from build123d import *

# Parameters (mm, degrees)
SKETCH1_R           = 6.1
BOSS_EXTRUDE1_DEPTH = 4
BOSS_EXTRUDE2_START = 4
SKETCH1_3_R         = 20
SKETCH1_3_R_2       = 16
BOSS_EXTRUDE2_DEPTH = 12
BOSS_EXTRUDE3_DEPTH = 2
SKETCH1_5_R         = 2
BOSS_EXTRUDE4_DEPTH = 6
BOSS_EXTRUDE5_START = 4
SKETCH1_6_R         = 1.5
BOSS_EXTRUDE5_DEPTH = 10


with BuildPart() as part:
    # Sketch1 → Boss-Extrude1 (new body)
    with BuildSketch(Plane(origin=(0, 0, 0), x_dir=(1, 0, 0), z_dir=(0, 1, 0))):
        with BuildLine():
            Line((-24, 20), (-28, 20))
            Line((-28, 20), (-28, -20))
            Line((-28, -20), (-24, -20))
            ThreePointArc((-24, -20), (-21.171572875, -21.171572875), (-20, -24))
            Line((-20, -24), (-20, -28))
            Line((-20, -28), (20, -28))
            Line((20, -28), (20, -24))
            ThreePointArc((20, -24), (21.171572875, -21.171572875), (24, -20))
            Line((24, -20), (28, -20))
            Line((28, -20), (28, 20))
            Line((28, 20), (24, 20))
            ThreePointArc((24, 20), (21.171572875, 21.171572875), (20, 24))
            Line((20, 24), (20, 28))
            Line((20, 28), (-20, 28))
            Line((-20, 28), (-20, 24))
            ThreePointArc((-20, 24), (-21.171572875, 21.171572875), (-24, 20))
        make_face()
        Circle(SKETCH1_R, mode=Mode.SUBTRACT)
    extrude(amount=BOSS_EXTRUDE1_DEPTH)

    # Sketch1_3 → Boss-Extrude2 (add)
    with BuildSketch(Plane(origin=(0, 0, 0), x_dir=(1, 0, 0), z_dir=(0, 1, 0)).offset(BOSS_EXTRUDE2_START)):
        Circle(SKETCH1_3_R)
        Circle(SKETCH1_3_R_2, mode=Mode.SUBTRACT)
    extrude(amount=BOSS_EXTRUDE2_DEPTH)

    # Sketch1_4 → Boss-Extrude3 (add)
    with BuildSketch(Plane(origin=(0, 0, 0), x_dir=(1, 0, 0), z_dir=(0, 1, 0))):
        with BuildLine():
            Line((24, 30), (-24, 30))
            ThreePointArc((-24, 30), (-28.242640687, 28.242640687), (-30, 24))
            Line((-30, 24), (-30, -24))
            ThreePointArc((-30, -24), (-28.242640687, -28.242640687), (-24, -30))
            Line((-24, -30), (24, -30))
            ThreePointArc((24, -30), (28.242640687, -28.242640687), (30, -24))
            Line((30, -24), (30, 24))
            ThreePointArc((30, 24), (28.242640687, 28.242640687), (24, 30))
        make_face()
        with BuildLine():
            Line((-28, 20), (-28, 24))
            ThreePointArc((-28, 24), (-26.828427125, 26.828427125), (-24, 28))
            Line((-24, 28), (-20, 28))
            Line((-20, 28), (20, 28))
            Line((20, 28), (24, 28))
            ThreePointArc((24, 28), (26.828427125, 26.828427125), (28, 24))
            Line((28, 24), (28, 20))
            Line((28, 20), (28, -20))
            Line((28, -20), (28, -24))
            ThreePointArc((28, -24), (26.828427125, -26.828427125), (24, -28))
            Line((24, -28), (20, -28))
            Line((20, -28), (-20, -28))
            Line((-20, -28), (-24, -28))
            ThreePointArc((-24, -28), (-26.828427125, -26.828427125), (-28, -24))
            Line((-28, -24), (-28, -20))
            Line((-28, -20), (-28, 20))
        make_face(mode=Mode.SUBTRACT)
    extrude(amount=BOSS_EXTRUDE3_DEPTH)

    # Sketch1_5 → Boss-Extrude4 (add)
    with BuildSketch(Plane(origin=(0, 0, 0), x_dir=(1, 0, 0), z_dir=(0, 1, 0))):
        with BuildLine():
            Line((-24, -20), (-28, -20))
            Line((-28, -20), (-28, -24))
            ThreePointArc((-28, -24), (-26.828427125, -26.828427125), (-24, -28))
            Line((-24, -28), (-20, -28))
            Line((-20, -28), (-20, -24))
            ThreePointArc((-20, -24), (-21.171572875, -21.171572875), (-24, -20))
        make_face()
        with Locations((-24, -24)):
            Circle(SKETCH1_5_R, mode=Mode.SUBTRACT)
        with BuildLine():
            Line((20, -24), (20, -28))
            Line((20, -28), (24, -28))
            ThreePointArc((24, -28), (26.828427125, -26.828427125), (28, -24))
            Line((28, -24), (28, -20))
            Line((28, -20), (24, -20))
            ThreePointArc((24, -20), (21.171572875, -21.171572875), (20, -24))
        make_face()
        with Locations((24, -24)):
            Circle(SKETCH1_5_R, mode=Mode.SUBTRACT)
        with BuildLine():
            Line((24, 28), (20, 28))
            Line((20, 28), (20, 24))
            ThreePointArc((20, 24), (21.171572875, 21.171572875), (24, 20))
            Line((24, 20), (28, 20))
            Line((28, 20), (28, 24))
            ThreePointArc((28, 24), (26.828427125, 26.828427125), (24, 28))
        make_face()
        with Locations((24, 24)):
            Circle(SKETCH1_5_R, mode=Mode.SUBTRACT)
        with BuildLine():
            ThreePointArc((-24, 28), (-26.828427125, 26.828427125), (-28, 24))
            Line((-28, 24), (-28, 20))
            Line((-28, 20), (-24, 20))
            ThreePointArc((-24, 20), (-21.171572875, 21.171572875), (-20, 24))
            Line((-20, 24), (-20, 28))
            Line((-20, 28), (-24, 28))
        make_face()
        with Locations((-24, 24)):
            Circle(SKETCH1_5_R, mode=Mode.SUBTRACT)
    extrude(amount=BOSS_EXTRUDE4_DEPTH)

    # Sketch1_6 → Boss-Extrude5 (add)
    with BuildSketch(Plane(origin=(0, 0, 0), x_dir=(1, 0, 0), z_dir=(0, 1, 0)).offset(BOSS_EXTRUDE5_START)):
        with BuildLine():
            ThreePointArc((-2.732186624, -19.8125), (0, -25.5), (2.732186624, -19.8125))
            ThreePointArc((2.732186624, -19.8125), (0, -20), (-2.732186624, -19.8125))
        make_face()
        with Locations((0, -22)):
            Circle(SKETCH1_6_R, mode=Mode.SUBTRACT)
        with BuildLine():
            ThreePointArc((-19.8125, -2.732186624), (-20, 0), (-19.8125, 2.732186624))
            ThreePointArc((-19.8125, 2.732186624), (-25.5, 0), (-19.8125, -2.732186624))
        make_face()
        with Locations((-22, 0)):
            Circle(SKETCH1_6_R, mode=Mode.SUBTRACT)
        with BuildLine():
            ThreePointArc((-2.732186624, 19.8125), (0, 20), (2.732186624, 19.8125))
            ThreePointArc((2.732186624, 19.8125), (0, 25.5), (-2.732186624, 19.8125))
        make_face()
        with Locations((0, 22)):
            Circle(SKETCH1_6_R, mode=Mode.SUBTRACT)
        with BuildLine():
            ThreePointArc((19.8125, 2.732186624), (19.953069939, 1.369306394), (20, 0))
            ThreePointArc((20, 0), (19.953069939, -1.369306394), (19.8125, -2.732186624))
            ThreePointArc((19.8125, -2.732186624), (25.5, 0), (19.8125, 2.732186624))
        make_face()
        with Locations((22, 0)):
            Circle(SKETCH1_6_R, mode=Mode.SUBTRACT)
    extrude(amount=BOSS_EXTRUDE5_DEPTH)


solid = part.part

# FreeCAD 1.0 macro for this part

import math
import FreeCAD as App
import Part
import Sketcher
from FreeCAD import Vector
Q = App.Units.Quantity

doc = App.newDocument("Part")
body = doc.addObject("PartDesign::Body", "Body")

# Sketch on XZ plane
sketch1 = body.newObject("Sketcher::SketchObject", "Sketch")
sketch1.AttachmentSupport = (doc.getObject("XZ_Plane"), [""])
sketch1.MapMode = "FlatFace"
sketch1.addGeometry(Part.LineSegment(Vector(-24, -20, 0), Vector(-28, -20, 0)), False)
sketch1.addGeometry(Part.LineSegment(Vector(-28, -20, 0), Vector(-28, 20, 0)), False)
sketch1.addGeometry(Part.LineSegment(Vector(-28, 20, 0), Vector(-24, 20, 0)), False)
sketch1.addGeometry(Part.ArcOfCircle(Part.Circle(Vector(-24, 24, 0), Vector(0, 0, 1), 4), math.radians(-90), math.radians(0)), False)
sketch1.addGeometry(Part.LineSegment(Vector(-20, 24, 0), Vector(-20, 28, 0)), False)
sketch1.addGeometry(Part.LineSegment(Vector(-20, 28, 0), Vector(20, 28, 0)), False)
sketch1.addGeometry(Part.LineSegment(Vector(20, 28, 0), Vector(20, 24, 0)), False)
sketch1.addGeometry(Part.ArcOfCircle(Part.Circle(Vector(24, 24, 0), Vector(0, 0, 1), 4), math.radians(180), math.radians(270)), False)
sketch1.addGeometry(Part.LineSegment(Vector(24, 20, 0), Vector(28, 20, 0)), False)
sketch1.addGeometry(Part.LineSegment(Vector(28, 20, 0), Vector(28, -20, 0)), False)
sketch1.addGeometry(Part.LineSegment(Vector(28, -20, 0), Vector(24, -20, 0)), False)
sketch1.addGeometry(Part.ArcOfCircle(Part.Circle(Vector(24, -24, 0), Vector(0, 0, 1), 4), math.radians(90), math.radians(180)), False)
sketch1.addGeometry(Part.LineSegment(Vector(20, -24, 0), Vector(20, -28, 0)), False)
sketch1.addGeometry(Part.LineSegment(Vector(20, -28, 0), Vector(-20, -28, 0)), False)
sketch1.addGeometry(Part.LineSegment(Vector(-20, -28, 0), Vector(-20, -24, 0)), False)
sketch1.addGeometry(Part.ArcOfCircle(Part.Circle(Vector(-24, -24, 0), Vector(0, 0, 1), 4), math.radians(0), math.radians(90)), False)
sketch1.addGeometry(Part.Circle(Vector(0, 0, 0), Vector(0, 0, 1), 6.1), False)
sketch1.addConstraint(Sketcher.Constraint("Coincident", 0, 2, 1, 1))
sketch1.addConstraint(Sketcher.Constraint("Coincident", 1, 2, 2, 1))
sketch1.addConstraint(Sketcher.Constraint("Tangent", 2, 2, 3, 1))
sketch1.addConstraint(Sketcher.Constraint("Tangent", 3, 2, 4, 1))
sketch1.addConstraint(Sketcher.Constraint("Coincident", 4, 2, 5, 1))
sketch1.addConstraint(Sketcher.Constraint("Coincident", 5, 2, 6, 1))
sketch1.addConstraint(Sketcher.Constraint("Tangent", 6, 2, 7, 1))
sketch1.addConstraint(Sketcher.Constraint("Tangent", 7, 2, 8, 1))
sketch1.addConstraint(Sketcher.Constraint("Coincident", 8, 2, 9, 1))
sketch1.addConstraint(Sketcher.Constraint("Coincident", 9, 2, 10, 1))
sketch1.addConstraint(Sketcher.Constraint("Tangent", 10, 2, 11, 1))
sketch1.addConstraint(Sketcher.Constraint("Tangent", 11, 2, 12, 1))
sketch1.addConstraint(Sketcher.Constraint("Coincident", 12, 2, 13, 1))
sketch1.addConstraint(Sketcher.Constraint("Coincident", 13, 2, 14, 1))
sketch1.addConstraint(Sketcher.Constraint("Tangent", 14, 2, 15, 1))
sketch1.addConstraint(Sketcher.Constraint("Tangent", 15, 2, 0, 1))
sketch1.addConstraint(Sketcher.Constraint("Horizontal", 0))
sketch1.addConstraint(Sketcher.Constraint("Vertical", 1))
sketch1.addConstraint(Sketcher.Constraint("Horizontal", 2))
sketch1.addConstraint(Sketcher.Constraint("Vertical", 4))
sketch1.addConstraint(Sketcher.Constraint("Horizontal", 5))
sketch1.addConstraint(Sketcher.Constraint("Vertical", 6))
sketch1.addConstraint(Sketcher.Constraint("Horizontal", 8))
sketch1.addConstraint(Sketcher.Constraint("Vertical", 9))
sketch1.addConstraint(Sketcher.Constraint("Horizontal", 10))
sketch1.addConstraint(Sketcher.Constraint("Vertical", 12))
sketch1.addConstraint(Sketcher.Constraint("Horizontal", 13))
sketch1.addConstraint(Sketcher.Constraint("Vertical", 14))
sketch1.addConstraint(Sketcher.Constraint("Coincident", 16, 3, -1, 1))
sketch1.addConstraint(Sketcher.Constraint("Equal", 3, 7))
sketch1.addConstraint(Sketcher.Constraint("Equal", 7, 11))
sketch1.addConstraint(Sketcher.Constraint("Equal", 11, 15))
sketch1.addConstraint(Sketcher.Constraint("Symmetric", 3, 3, 11, 3, -1, 1))
sketch1.addConstraint(Sketcher.Constraint("Symmetric", 7, 3, 15, 3, -1, 1))
sketch1.addConstraint(Sketcher.Constraint("Symmetric", 3, 3, 7, 3, -2))
sketch1.addConstraint(Sketcher.Constraint("Equal", 2, 8))
sketch1.addConstraint(Sketcher.Constraint("Equal", 13, 1))
sketch1.addConstraint(Sketcher.Constraint("Equal", 10, 4))
sketch1.addConstraint(Sketcher.Constraint("Equal", 6, 12))
sketch1.addConstraint(Sketcher.Constraint("Radius", 3, Q("4 mm")))
sketch1.addConstraint(Sketcher.Constraint("Diameter", 16, Q("12.2 mm")))
sketch1.addConstraint(Sketcher.Constraint("DistanceX", 0, 2, 0, 1, Q("4 mm")))
sketch1.addConstraint(Sketcher.Constraint("DistanceX", 5, 1, 5, 2, Q("40 mm")))
pad1 = body.newObject("PartDesign::Pad", "Pad")
pad1.Profile = sketch1
pad1.Length = 4
pad1.Reversed = True

# Sketch on XZ plane
sketch2 = body.newObject("Sketcher::SketchObject", "Sketch001")
sketch2.AttachmentSupport = (doc.getObject("XZ_Plane"), [""])
sketch2.MapMode = "FlatFace"
sketch2.AttachmentOffset = App.Placement(Vector(0, 0, -4), App.Rotation())
sketch2.addGeometry(Part.Circle(Vector(0, 0, 0), Vector(0, 0, 1), 20), False)
sketch2.addGeometry(Part.Circle(Vector(0, 0, 0), Vector(0, 0, 1), 16), False)
sketch2.addConstraint(Sketcher.Constraint("Coincident", 0, 3, -1, 1))
sketch2.addConstraint(Sketcher.Constraint("Coincident", 1, 3, -1, 1))
sketch2.addConstraint(Sketcher.Constraint("Diameter", 0, Q("40 mm")))
sketch2.addConstraint(Sketcher.Constraint("Diameter", 1, Q("32 mm")))
pad2 = body.newObject("PartDesign::Pad", "Pad001")
pad2.Profile = sketch2
pad2.Length = 12
pad2.Reversed = True

# Sketch on XZ plane
sketch3 = body.newObject("Sketcher::SketchObject", "Sketch002")
sketch3.AttachmentSupport = (doc.getObject("XZ_Plane"), [""])
sketch3.MapMode = "FlatFace"
sketch3.addGeometry(Part.LineSegment(Vector(24, -30, 0), Vector(-24, -30, 0)), False)
sketch3.addGeometry(Part.ArcOfCircle(Part.Circle(Vector(-24, -24, 0), Vector(0, 0, 1), 6), math.radians(180), math.radians(270)), False)
sketch3.addGeometry(Part.LineSegment(Vector(-30, -24, 0), Vector(-30, 24, 0)), False)
sketch3.addGeometry(Part.ArcOfCircle(Part.Circle(Vector(-24, 24, 0), Vector(0, 0, 1), 6), math.radians(90), math.radians(180)), False)
sketch3.addGeometry(Part.LineSegment(Vector(-24, 30, 0), Vector(24, 30, 0)), False)
sketch3.addGeometry(Part.ArcOfCircle(Part.Circle(Vector(24, 24, 0), Vector(0, 0, 1), 6), math.radians(0), math.radians(90)), False)
sketch3.addGeometry(Part.LineSegment(Vector(30, 24, 0), Vector(30, -24, 0)), False)
sketch3.addGeometry(Part.ArcOfCircle(Part.Circle(Vector(24, -24, 0), Vector(0, 0, 1), 6), math.radians(-90), math.radians(0)), False)
sketch3.addGeometry(Part.LineSegment(Vector(-28, 24, 0), Vector(-28, -24, 0)), False)
sketch3.addGeometry(Part.ArcOfCircle(Part.Circle(Vector(-24, -24, 0), Vector(0, 0, 1), 4), math.radians(180), math.radians(270)), False)
sketch3.addGeometry(Part.LineSegment(Vector(-24, -28, 0), Vector(24, -28, 0)), False)
sketch3.addGeometry(Part.ArcOfCircle(Part.Circle(Vector(24, -24, 0), Vector(0, 0, 1), 4), math.radians(-90), math.radians(0)), False)
sketch3.addGeometry(Part.LineSegment(Vector(28, -24, 0), Vector(28, 24, 0)), False)
sketch3.addGeometry(Part.ArcOfCircle(Part.Circle(Vector(24, 24, 0), Vector(0, 0, 1), 4), math.radians(0), math.radians(90)), False)
sketch3.addGeometry(Part.LineSegment(Vector(24, 28, 0), Vector(-24, 28, 0)), False)
sketch3.addGeometry(Part.ArcOfCircle(Part.Circle(Vector(-24, 24, 0), Vector(0, 0, 1), 4), math.radians(90), math.radians(180)), False)
sketch3.addConstraint(Sketcher.Constraint("Tangent", 0, 2, 1, 2))
sketch3.addConstraint(Sketcher.Constraint("Tangent", 1, 1, 2, 1))
sketch3.addConstraint(Sketcher.Constraint("Tangent", 2, 2, 3, 2))
sketch3.addConstraint(Sketcher.Constraint("Tangent", 3, 1, 4, 1))
sketch3.addConstraint(Sketcher.Constraint("Tangent", 4, 2, 5, 2))
sketch3.addConstraint(Sketcher.Constraint("Tangent", 5, 1, 6, 1))
sketch3.addConstraint(Sketcher.Constraint("Tangent", 6, 2, 7, 2))
sketch3.addConstraint(Sketcher.Constraint("Tangent", 7, 1, 0, 1))
sketch3.addConstraint(Sketcher.Constraint("Tangent", 8, 2, 9, 1))
sketch3.addConstraint(Sketcher.Constraint("Tangent", 9, 2, 10, 1))
sketch3.addConstraint(Sketcher.Constraint("Tangent", 10, 2, 11, 1))
sketch3.addConstraint(Sketcher.Constraint("Tangent", 11, 2, 12, 1))
sketch3.addConstraint(Sketcher.Constraint("Tangent", 12, 2, 13, 1))
sketch3.addConstraint(Sketcher.Constraint("Tangent", 13, 2, 14, 1))
sketch3.addConstraint(Sketcher.Constraint("Tangent", 14, 2, 15, 1))
sketch3.addConstraint(Sketcher.Constraint("Tangent", 15, 2, 8, 1))
sketch3.addConstraint(Sketcher.Constraint("Horizontal", 0))
sketch3.addConstraint(Sketcher.Constraint("Vertical", 2))
sketch3.addConstraint(Sketcher.Constraint("Horizontal", 4))
sketch3.addConstraint(Sketcher.Constraint("Vertical", 6))
sketch3.addConstraint(Sketcher.Constraint("Vertical", 8))
sketch3.addConstraint(Sketcher.Constraint("Horizontal", 10))
sketch3.addConstraint(Sketcher.Constraint("Vertical", 12))
sketch3.addConstraint(Sketcher.Constraint("Horizontal", 14))
sketch3.addConstraint(Sketcher.Constraint("Coincident", 9, 3, 1, 3))
sketch3.addConstraint(Sketcher.Constraint("Coincident", 11, 3, 7, 3))
sketch3.addConstraint(Sketcher.Constraint("Coincident", 13, 3, 5, 3))
sketch3.addConstraint(Sketcher.Constraint("Equal", 1, 3))
sketch3.addConstraint(Sketcher.Constraint("Equal", 3, 5))
sketch3.addConstraint(Sketcher.Constraint("Equal", 5, 7))
sketch3.addConstraint(Sketcher.Constraint("Equal", 13, 15))
sketch3.addConstraint(Sketcher.Constraint("Symmetric", 1, 3, 5, 3, -1, 1))
sketch3.addConstraint(Sketcher.Constraint("Equal", 14, 2))
sketch3.addConstraint(Sketcher.Constraint("Radius", 1, Q("6 mm")))
sketch3.addConstraint(Sketcher.Constraint("Radius", 9, Q("4 mm")))
sketch3.addConstraint(Sketcher.Constraint("DistanceX", 0, 2, 0, 1, Q("48 mm")))
pad3 = body.newObject("PartDesign::Pad", "Pad002")
pad3.Profile = sketch3
pad3.Length = 2
pad3.Reversed = True

# Sketch on XZ plane
sketch4 = body.newObject("Sketcher::SketchObject", "Sketch003")
sketch4.AttachmentSupport = (doc.getObject("XZ_Plane"), [""])
sketch4.MapMode = "FlatFace"
sketch4.addGeometry(Part.LineSegment(Vector(-24, 20, 0), Vector(-28, 20, 0)), False)
sketch4.addGeometry(Part.LineSegment(Vector(-28, 20, 0), Vector(-28, 24, 0)), False)
sketch4.addGeometry(Part.ArcOfCircle(Part.Circle(Vector(-24, 24, 0), Vector(0, 0, 1), 4), math.radians(90), math.radians(180)), False)
sketch4.addGeometry(Part.LineSegment(Vector(-24, 28, 0), Vector(-20, 28, 0)), False)
sketch4.addGeometry(Part.LineSegment(Vector(-20, 28, 0), Vector(-20, 24, 0)), False)
sketch4.addGeometry(Part.ArcOfCircle(Part.Circle(Vector(-24, 24, 0), Vector(0, 0, 1), 4), math.radians(-90), math.radians(0)), False)
sketch4.addGeometry(Part.Circle(Vector(-24, 24, 0), Vector(0, 0, 1), 2), False)
sketch4.addGeometry(Part.LineSegment(Vector(20, 24, 0), Vector(20, 28, 0)), False)
sketch4.addGeometry(Part.LineSegment(Vector(20, 28, 0), Vector(24, 28, 0)), False)
sketch4.addGeometry(Part.ArcOfCircle(Part.Circle(Vector(24, 24, 0), Vector(0, 0, 1), 4), math.radians(0), math.radians(90)), False)
sketch4.addGeometry(Part.LineSegment(Vector(28, 24, 0), Vector(28, 20, 0)), False)
sketch4.addGeometry(Part.LineSegment(Vector(28, 20, 0), Vector(24, 20, 0)), False)
sketch4.addGeometry(Part.ArcOfCircle(Part.Circle(Vector(24, 24, 0), Vector(0, 0, 1), 4), math.radians(180), math.radians(270)), False)
sketch4.addGeometry(Part.Circle(Vector(24, 24, 0), Vector(0, 0, 1), 2), False)
sketch4.addGeometry(Part.LineSegment(Vector(24, -28, 0), Vector(20, -28, 0)), False)
sketch4.addGeometry(Part.LineSegment(Vector(20, -28, 0), Vector(20, -24, 0)), False)
sketch4.addGeometry(Part.ArcOfCircle(Part.Circle(Vector(24, -24, 0), Vector(0, 0, 1), 4), math.radians(90), math.radians(180)), False)
sketch4.addGeometry(Part.LineSegment(Vector(24, -20, 0), Vector(28, -20, 0)), False)
sketch4.addGeometry(Part.LineSegment(Vector(28, -20, 0), Vector(28, -24, 0)), False)
sketch4.addGeometry(Part.ArcOfCircle(Part.Circle(Vector(24, -24, 0), Vector(0, 0, 1), 4), math.radians(-90), math.radians(0)), False)
sketch4.addGeometry(Part.Circle(Vector(24, -24, 0), Vector(0, 0, 1), 2), False)
sketch4.addGeometry(Part.ArcOfCircle(Part.Circle(Vector(-24, -24, 0), Vector(0, 0, 1), 4), math.radians(180), math.radians(270)), False)
sketch4.addGeometry(Part.LineSegment(Vector(-28, -24, 0), Vector(-28, -20, 0)), False)
sketch4.addGeometry(Part.LineSegment(Vector(-28, -20, 0), Vector(-24, -20, 0)), False)
sketch4.addGeometry(Part.ArcOfCircle(Part.Circle(Vector(-24, -24, 0), Vector(0, 0, 1), 4), math.radians(0), math.radians(90)), False)
sketch4.addGeometry(Part.LineSegment(Vector(-20, -24, 0), Vector(-20, -28, 0)), False)
sketch4.addGeometry(Part.LineSegment(Vector(-20, -28, 0), Vector(-24, -28, 0)), False)
sketch4.addGeometry(Part.Circle(Vector(-24, -24, 0), Vector(0, 0, 1), 2), False)
sketch4.addConstraint(Sketcher.Constraint("Coincident", 0, 2, 1, 1))
sketch4.addConstraint(Sketcher.Constraint("Tangent", 1, 2, 2, 2))
sketch4.addConstraint(Sketcher.Constraint("Tangent", 2, 1, 3, 1))
sketch4.addConstraint(Sketcher.Constraint("Coincident", 3, 2, 4, 1))
sketch4.addConstraint(Sketcher.Constraint("Tangent", 4, 2, 5, 2))
sketch4.addConstraint(Sketcher.Constraint("Tangent", 5, 1, 0, 1))
sketch4.addConstraint(Sketcher.Constraint("Coincident", 7, 2, 8, 1))
sketch4.addConstraint(Sketcher.Constraint("Tangent", 8, 2, 9, 2))
sketch4.addConstraint(Sketcher.Constraint("Tangent", 9, 1, 10, 1))
sketch4.addConstraint(Sketcher.Constraint("Coincident", 10, 2, 11, 1))
sketch4.addConstraint(Sketcher.Constraint("Tangent", 11, 2, 12, 2))
sketch4.addConstraint(Sketcher.Constraint("Tangent", 12, 1, 7, 1))
sketch4.addConstraint(Sketcher.Constraint("Coincident", 14, 2, 15, 1))
sketch4.addConstraint(Sketcher.Constraint("Tangent", 15, 2, 16, 2))
sketch4.addConstraint(Sketcher.Constraint("Tangent", 16, 1, 17, 1))
sketch4.addConstraint(Sketcher.Constraint("Coincident", 17, 2, 18, 1))
sketch4.addConstraint(Sketcher.Constraint("Tangent", 18, 2, 19, 2))
sketch4.addConstraint(Sketcher.Constraint("Tangent", 19, 1, 14, 1))
sketch4.addConstraint(Sketcher.Constraint("Tangent", 21, 1, 22, 1))
sketch4.addConstraint(Sketcher.Constraint("Coincident", 22, 2, 23, 1))
sketch4.addConstraint(Sketcher.Constraint("Tangent", 23, 2, 24, 2))
sketch4.addConstraint(Sketcher.Constraint("Tangent", 24, 1, 25, 1))
sketch4.addConstraint(Sketcher.Constraint("Coincident", 25, 2, 26, 1))
sketch4.addConstraint(Sketcher.Constraint("Tangent", 26, 2, 21, 2))
sketch4.addConstraint(Sketcher.Constraint("Horizontal", 0))
sketch4.addConstraint(Sketcher.Constraint("Vertical", 1))
sketch4.addConstraint(Sketcher.Constraint("Horizontal", 3))
sketch4.addConstraint(Sketcher.Constraint("Vertical", 4))
sketch4.addConstraint(Sketcher.Constraint("Vertical", 7))
sketch4.addConstraint(Sketcher.Constraint("Horizontal", 8))
sketch4.addConstraint(Sketcher.Constraint("Vertical", 10))
sketch4.addConstraint(Sketcher.Constraint("Horizontal", 11))
sketch4.addConstraint(Sketcher.Constraint("Horizontal", 14))
sketch4.addConstraint(Sketcher.Constraint("Vertical", 15))
sketch4.addConstraint(Sketcher.Constraint("Horizontal", 17))
sketch4.addConstraint(Sketcher.Constraint("Vertical", 18))
sketch4.addConstraint(Sketcher.Constraint("Vertical", 22))
sketch4.addConstraint(Sketcher.Constraint("Horizontal", 23))
sketch4.addConstraint(Sketcher.Constraint("Vertical", 25))
sketch4.addConstraint(Sketcher.Constraint("Horizontal", 26))
sketch4.addConstraint(Sketcher.Constraint("Coincident", 5, 3, 2, 3))
sketch4.addConstraint(Sketcher.Constraint("Coincident", 6, 3, 2, 3))
sketch4.addConstraint(Sketcher.Constraint("Coincident", 12, 3, 9, 3))
sketch4.addConstraint(Sketcher.Constraint("Coincident", 13, 3, 9, 3))
sketch4.addConstraint(Sketcher.Constraint("Coincident", 19, 3, 16, 3))
sketch4.addConstraint(Sketcher.Constraint("Coincident", 20, 3, 16, 3))
sketch4.addConstraint(Sketcher.Constraint("Coincident", 24, 3, 21, 3))
sketch4.addConstraint(Sketcher.Constraint("Coincident", 27, 3, 21, 3))
sketch4.addConstraint(Sketcher.Constraint("Equal", 2, 5))
sketch4.addConstraint(Sketcher.Constraint("Equal", 5, 9))
sketch4.addConstraint(Sketcher.Constraint("Equal", 9, 12))
sketch4.addConstraint(Sketcher.Constraint("Equal", 6, 13))
sketch4.addConstraint(Sketcher.Constraint("Equal", 12, 16))
sketch4.addConstraint(Sketcher.Constraint("Equal", 16, 19))
sketch4.addConstraint(Sketcher.Constraint("Equal", 13, 20))
sketch4.addConstraint(Sketcher.Constraint("Equal", 19, 21))
sketch4.addConstraint(Sketcher.Constraint("Equal", 21, 24))
sketch4.addConstraint(Sketcher.Constraint("Equal", 20, 27))
sketch4.addConstraint(Sketcher.Constraint("Symmetric", 2, 3, 16, 3, -1, 1))
sketch4.addConstraint(Sketcher.Constraint("Symmetric", 9, 3, 21, 3, -1, 1))
sketch4.addConstraint(Sketcher.Constraint("Symmetric", 2, 3, 9, 3, -2))
sketch4.addConstraint(Sketcher.Constraint("Diameter", 6, Q("4 mm")))
sketch4.addConstraint(Sketcher.Constraint("Radius", 2, Q("4 mm")))
sketch4.addConstraint(Sketcher.Constraint("DistanceX", 2, 3, -1, 1, Q("24 mm")))
sketch4.addConstraint(Sketcher.Constraint("DistanceY", -1, 1, 2, 3, Q("24 mm")))
pad4 = body.newObject("PartDesign::Pad", "Pad003")
pad4.Profile = sketch4
pad4.Length = 6
pad4.Reversed = True

# Sketch on XZ plane
sketch5 = body.newObject("Sketcher::SketchObject", "Sketch004")
sketch5.AttachmentSupport = (doc.getObject("XZ_Plane"), [""])
sketch5.MapMode = "FlatFace"
sketch5.AttachmentOffset = App.Placement(Vector(0, 0, -4), App.Rotation())
sketch5.addGeometry(Part.ArcOfCircle(Part.Circle(Vector(0, 22, 0), Vector(0, 0, 1), 3.5), math.radians(-39), math.radians(219)), False)
sketch5.addGeometry(Part.ArcOfCircle(Part.Circle(Vector(0, 0, 0), Vector(0, 0, 1), 20), math.radians(82.15), math.radians(97.85)), False)
sketch5.addGeometry(Part.Circle(Vector(0, 22, 0), Vector(0, 0, 1), 1.5), False)
sketch5.addGeometry(Part.ArcOfCircle(Part.Circle(Vector(0, 0, 0), Vector(0, 0, 1), 20), math.radians(172.15), math.radians(187.85)), False)
sketch5.addGeometry(Part.ArcOfCircle(Part.Circle(Vector(-22, 0, 0), Vector(0, 0, 1), 3.5), math.radians(51), math.radians(309)), False)
sketch5.addGeometry(Part.Circle(Vector(-22, 0, 0), Vector(0, 0, 1), 1.5), False)
sketch5.addGeometry(Part.ArcOfCircle(Part.Circle(Vector(0, 0, 0), Vector(0, 0, 1), 20), math.radians(-97.85), math.radians(-82.15)), False)
sketch5.addGeometry(Part.ArcOfCircle(Part.Circle(Vector(0, -22, 0), Vector(0, 0, 1), 3.5), math.radians(141), math.radians(399)), False)
sketch5.addGeometry(Part.Circle(Vector(0, -22, 0), Vector(0, 0, 1), 1.5), False)
sketch5.addGeometry(Part.ArcOfCircle(Part.Circle(Vector(0, 0, 0), Vector(0, 0, 1), 20), math.radians(-7.85), math.radians(0)), False)
sketch5.addGeometry(Part.ArcOfCircle(Part.Circle(Vector(0, 0, 0), Vector(0, 0, 1), 20), math.radians(0), math.radians(7.85)), False)
sketch5.addGeometry(Part.ArcOfCircle(Part.Circle(Vector(22, 0, 0), Vector(0, 0, 1), 3.5), math.radians(-129), math.radians(129)), False)
sketch5.addGeometry(Part.Circle(Vector(22, 0, 0), Vector(0, 0, 1), 1.5), False)
sketch5.addConstraint(Sketcher.Constraint("Coincident", 0, 1, 1, 1))
sketch5.addConstraint(Sketcher.Constraint("Coincident", 1, 2, 0, 2))
sketch5.addConstraint(Sketcher.Constraint("Coincident", 3, 1, 4, 1))
sketch5.addConstraint(Sketcher.Constraint("Coincident", 4, 2, 3, 2))
sketch5.addConstraint(Sketcher.Constraint("Coincident", 6, 1, 7, 1))
sketch5.addConstraint(Sketcher.Constraint("Coincident", 7, 2, 6, 2))
sketch5.addConstraint(Sketcher.Constraint("Tangent", 9, 2, 10, 1))
sketch5.addConstraint(Sketcher.Constraint("Coincident", 10, 2, 11, 2))
sketch5.addConstraint(Sketcher.Constraint("Coincident", 11, 1, 9, 1))
sketch5.addConstraint(Sketcher.Constraint("Coincident", 1, 3, -1, 1))
sketch5.addConstraint(Sketcher.Constraint("Coincident", 3, 3, -1, 1))
sketch5.addConstraint(Sketcher.Constraint("Coincident", 6, 3, -1, 1))
sketch5.addConstraint(Sketcher.Constraint("Coincident", 9, 3, -1, 1))
sketch5.addConstraint(Sketcher.Constraint("Coincident", 2, 3, 0, 3))
sketch5.addConstraint(Sketcher.Constraint("Coincident", 5, 3, 4, 3))
sketch5.addConstraint(Sketcher.Constraint("Coincident", 8, 3, 7, 3))
sketch5.addConstraint(Sketcher.Constraint("Coincident", 12, 3, 11, 3))
sketch5.addConstraint(Sketcher.Constraint("Equal", 1, 3))
sketch5.addConstraint(Sketcher.Constraint("Equal", 0, 4))
sketch5.addConstraint(Sketcher.Constraint("Equal", 2, 5))
sketch5.addConstraint(Sketcher.Constraint("Equal", 3, 6))
sketch5.addConstraint(Sketcher.Constraint("Equal", 4, 7))
sketch5.addConstraint(Sketcher.Constraint("Equal", 5, 8))
sketch5.addConstraint(Sketcher.Constraint("Equal", 6, 9))
sketch5.addConstraint(Sketcher.Constraint("Equal", 9, 10))
sketch5.addConstraint(Sketcher.Constraint("Equal", 7, 11))
sketch5.addConstraint(Sketcher.Constraint("Equal", 8, 12))
sketch5.addConstraint(Sketcher.Constraint("Symmetric", 0, 3, 7, 3, -1, 1))
sketch5.addConstraint(Sketcher.Constraint("Symmetric", 4, 3, 11, 3, -1, 1))
sketch5.addConstraint(Sketcher.Constraint("PointOnObject", 0, 3, -2))
sketch5.addConstraint(Sketcher.Constraint("PointOnObject", 4, 3, -1))
sketch5.addConstraint(Sketcher.Constraint("PointOnObject", 9, 2, -1))
sketch5.addConstraint(Sketcher.Constraint("Diameter", 2, Q("3 mm")))
sketch5.addConstraint(Sketcher.Constraint("Radius", 1, Q("20 mm")))
sketch5.addConstraint(Sketcher.Constraint("Radius", 0, Q("3.5 mm")))
sketch5.addConstraint(Sketcher.Constraint("DistanceY", -1, 1, 0, 3, Q("22 mm")))
sketch5.addConstraint(Sketcher.Constraint("DistanceX", 4, 3, -1, 1, Q("22 mm")))
pad5 = body.newObject("PartDesign::Pad", "Pad004")
pad5.Profile = sketch5
pad5.Length = 10
pad5.Reversed = True

doc.recompute()
